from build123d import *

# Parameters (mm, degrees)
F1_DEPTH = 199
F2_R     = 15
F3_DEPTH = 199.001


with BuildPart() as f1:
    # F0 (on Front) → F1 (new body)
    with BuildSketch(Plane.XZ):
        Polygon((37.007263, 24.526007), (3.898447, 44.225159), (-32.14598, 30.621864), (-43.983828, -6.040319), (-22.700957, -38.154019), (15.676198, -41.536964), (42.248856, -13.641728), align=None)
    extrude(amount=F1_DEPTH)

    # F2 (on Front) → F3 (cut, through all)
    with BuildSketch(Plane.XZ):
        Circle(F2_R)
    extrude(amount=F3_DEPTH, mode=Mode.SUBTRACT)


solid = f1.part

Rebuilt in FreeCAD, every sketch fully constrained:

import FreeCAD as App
import Part
import Sketcher

doc = App.newDocument("Part")
body = doc.addObject("PartDesign::Body", "Body")

# Sketch on XZ plane
sketch1 = body.newObject("Sketcher::SketchObject", "Sketch")
sketch1.AttachmentSupport = (doc.getObject("XZ_Plane"), [""])
sketch1.MapMode = "FlatFace"
sketch1.addGeometry([
    Part.LineSegment(App.Vector(37.007263, 24.526007, 0), App.Vector(3.898447, 44.225159, 0)),  # 0
    Part.LineSegment(App.Vector(3.898447, 44.225159, 0), App.Vector(-32.14598, 30.621864, 0)),  # 1
    Part.LineSegment(App.Vector(-32.14598, 30.621864, 0), App.Vector(-43.983828, -6.040319, 0)),  # 2
    Part.LineSegment(App.Vector(-43.983828, -6.040319, 0), App.Vector(-22.700957, -38.154019, 0)),  # 3
    Part.LineSegment(App.Vector(-22.700957, -38.154019, 0), App.Vector(15.676198, -41.536964, 0)),  # 4
    Part.LineSegment(App.Vector(15.676198, -41.536964, 0), App.Vector(42.248856, -13.641728, 0)),  # 5
    Part.LineSegment(App.Vector(42.248856, -13.641728, 0), App.Vector(37.007263, 24.526007, 0)),  # 6
], False)
sketch1.addConstraint([
    Sketcher.Constraint("Coincident", 0, 2, 1, 1),
    Sketcher.Constraint("Coincident", 1, 2, 2, 1),
    Sketcher.Constraint("Coincident", 2, 2, 3, 1),
    Sketcher.Constraint("Coincident", 3, 2, 4, 1),
    Sketcher.Constraint("Coincident", 4, 2, 5, 1),
    Sketcher.Constraint("Coincident", 5, 2, 6, 1),
    Sketcher.Constraint("Coincident", 6, 2, 0, 1),
    Sketcher.Constraint("Equal", 0, 1),
    Sketcher.Constraint("Equal", 1, 2),
    Sketcher.Constraint("Equal", 2, 3),
    Sketcher.Constraint("Equal", 3, 4),
    Sketcher.Constraint("Equal", 4, 5),
    Sketcher.Constraint("Equal", 5, 6),
    Sketcher.Constraint("DistanceY", 3, 2, 2, 2, 32.1137),
    Sketcher.Constraint("Distance", 0, 38.525969),
    Sketcher.Constraint("DistanceY", -1, 1, 0, 2, 44.225159),
    Sketcher.Constraint("DistanceX", 1, 2, -1, 1, 32.14598),
    Sketcher.Constraint("DistanceX", 2, 2, -1, 1, 43.983828),
    Sketcher.Constraint("DistanceY", 2, 2, -1, 1, 6.040319),
    Sketcher.Constraint("DistanceX", 0, 2, 4, 2, 11.777751),
    Sketcher.Constraint("DistanceX", 4, 2, 5, 2, 26.572658),
])
pad1 = body.newObject("PartDesign::Pad", "Pad")
pad1.Profile = sketch1
pad1.Length = 199

# Sketch on XZ plane
sketch2 = body.newObject("Sketcher::SketchObject", "Sketch001")
sketch2.AttachmentSupport = (doc.getObject("XZ_Plane"), [""])
sketch2.MapMode = "FlatFace"
sketch2.addGeometry(Part.Circle(App.Vector(0, 0, 0), App.Vector(0, 0, 1), 15), False)
sketch2.addConstraint([
    Sketcher.Constraint("Coincident", 0, 3, -1, 1),
    Sketcher.Constraint("Diameter", 0, 30.0),
])
pocket1 = body.newObject("PartDesign::Pocket", "Pocket")
pocket1.Profile = sketch2
pocket1.Type = "ThroughAll"
pocket1.Reversed = True

doc.recompute()
